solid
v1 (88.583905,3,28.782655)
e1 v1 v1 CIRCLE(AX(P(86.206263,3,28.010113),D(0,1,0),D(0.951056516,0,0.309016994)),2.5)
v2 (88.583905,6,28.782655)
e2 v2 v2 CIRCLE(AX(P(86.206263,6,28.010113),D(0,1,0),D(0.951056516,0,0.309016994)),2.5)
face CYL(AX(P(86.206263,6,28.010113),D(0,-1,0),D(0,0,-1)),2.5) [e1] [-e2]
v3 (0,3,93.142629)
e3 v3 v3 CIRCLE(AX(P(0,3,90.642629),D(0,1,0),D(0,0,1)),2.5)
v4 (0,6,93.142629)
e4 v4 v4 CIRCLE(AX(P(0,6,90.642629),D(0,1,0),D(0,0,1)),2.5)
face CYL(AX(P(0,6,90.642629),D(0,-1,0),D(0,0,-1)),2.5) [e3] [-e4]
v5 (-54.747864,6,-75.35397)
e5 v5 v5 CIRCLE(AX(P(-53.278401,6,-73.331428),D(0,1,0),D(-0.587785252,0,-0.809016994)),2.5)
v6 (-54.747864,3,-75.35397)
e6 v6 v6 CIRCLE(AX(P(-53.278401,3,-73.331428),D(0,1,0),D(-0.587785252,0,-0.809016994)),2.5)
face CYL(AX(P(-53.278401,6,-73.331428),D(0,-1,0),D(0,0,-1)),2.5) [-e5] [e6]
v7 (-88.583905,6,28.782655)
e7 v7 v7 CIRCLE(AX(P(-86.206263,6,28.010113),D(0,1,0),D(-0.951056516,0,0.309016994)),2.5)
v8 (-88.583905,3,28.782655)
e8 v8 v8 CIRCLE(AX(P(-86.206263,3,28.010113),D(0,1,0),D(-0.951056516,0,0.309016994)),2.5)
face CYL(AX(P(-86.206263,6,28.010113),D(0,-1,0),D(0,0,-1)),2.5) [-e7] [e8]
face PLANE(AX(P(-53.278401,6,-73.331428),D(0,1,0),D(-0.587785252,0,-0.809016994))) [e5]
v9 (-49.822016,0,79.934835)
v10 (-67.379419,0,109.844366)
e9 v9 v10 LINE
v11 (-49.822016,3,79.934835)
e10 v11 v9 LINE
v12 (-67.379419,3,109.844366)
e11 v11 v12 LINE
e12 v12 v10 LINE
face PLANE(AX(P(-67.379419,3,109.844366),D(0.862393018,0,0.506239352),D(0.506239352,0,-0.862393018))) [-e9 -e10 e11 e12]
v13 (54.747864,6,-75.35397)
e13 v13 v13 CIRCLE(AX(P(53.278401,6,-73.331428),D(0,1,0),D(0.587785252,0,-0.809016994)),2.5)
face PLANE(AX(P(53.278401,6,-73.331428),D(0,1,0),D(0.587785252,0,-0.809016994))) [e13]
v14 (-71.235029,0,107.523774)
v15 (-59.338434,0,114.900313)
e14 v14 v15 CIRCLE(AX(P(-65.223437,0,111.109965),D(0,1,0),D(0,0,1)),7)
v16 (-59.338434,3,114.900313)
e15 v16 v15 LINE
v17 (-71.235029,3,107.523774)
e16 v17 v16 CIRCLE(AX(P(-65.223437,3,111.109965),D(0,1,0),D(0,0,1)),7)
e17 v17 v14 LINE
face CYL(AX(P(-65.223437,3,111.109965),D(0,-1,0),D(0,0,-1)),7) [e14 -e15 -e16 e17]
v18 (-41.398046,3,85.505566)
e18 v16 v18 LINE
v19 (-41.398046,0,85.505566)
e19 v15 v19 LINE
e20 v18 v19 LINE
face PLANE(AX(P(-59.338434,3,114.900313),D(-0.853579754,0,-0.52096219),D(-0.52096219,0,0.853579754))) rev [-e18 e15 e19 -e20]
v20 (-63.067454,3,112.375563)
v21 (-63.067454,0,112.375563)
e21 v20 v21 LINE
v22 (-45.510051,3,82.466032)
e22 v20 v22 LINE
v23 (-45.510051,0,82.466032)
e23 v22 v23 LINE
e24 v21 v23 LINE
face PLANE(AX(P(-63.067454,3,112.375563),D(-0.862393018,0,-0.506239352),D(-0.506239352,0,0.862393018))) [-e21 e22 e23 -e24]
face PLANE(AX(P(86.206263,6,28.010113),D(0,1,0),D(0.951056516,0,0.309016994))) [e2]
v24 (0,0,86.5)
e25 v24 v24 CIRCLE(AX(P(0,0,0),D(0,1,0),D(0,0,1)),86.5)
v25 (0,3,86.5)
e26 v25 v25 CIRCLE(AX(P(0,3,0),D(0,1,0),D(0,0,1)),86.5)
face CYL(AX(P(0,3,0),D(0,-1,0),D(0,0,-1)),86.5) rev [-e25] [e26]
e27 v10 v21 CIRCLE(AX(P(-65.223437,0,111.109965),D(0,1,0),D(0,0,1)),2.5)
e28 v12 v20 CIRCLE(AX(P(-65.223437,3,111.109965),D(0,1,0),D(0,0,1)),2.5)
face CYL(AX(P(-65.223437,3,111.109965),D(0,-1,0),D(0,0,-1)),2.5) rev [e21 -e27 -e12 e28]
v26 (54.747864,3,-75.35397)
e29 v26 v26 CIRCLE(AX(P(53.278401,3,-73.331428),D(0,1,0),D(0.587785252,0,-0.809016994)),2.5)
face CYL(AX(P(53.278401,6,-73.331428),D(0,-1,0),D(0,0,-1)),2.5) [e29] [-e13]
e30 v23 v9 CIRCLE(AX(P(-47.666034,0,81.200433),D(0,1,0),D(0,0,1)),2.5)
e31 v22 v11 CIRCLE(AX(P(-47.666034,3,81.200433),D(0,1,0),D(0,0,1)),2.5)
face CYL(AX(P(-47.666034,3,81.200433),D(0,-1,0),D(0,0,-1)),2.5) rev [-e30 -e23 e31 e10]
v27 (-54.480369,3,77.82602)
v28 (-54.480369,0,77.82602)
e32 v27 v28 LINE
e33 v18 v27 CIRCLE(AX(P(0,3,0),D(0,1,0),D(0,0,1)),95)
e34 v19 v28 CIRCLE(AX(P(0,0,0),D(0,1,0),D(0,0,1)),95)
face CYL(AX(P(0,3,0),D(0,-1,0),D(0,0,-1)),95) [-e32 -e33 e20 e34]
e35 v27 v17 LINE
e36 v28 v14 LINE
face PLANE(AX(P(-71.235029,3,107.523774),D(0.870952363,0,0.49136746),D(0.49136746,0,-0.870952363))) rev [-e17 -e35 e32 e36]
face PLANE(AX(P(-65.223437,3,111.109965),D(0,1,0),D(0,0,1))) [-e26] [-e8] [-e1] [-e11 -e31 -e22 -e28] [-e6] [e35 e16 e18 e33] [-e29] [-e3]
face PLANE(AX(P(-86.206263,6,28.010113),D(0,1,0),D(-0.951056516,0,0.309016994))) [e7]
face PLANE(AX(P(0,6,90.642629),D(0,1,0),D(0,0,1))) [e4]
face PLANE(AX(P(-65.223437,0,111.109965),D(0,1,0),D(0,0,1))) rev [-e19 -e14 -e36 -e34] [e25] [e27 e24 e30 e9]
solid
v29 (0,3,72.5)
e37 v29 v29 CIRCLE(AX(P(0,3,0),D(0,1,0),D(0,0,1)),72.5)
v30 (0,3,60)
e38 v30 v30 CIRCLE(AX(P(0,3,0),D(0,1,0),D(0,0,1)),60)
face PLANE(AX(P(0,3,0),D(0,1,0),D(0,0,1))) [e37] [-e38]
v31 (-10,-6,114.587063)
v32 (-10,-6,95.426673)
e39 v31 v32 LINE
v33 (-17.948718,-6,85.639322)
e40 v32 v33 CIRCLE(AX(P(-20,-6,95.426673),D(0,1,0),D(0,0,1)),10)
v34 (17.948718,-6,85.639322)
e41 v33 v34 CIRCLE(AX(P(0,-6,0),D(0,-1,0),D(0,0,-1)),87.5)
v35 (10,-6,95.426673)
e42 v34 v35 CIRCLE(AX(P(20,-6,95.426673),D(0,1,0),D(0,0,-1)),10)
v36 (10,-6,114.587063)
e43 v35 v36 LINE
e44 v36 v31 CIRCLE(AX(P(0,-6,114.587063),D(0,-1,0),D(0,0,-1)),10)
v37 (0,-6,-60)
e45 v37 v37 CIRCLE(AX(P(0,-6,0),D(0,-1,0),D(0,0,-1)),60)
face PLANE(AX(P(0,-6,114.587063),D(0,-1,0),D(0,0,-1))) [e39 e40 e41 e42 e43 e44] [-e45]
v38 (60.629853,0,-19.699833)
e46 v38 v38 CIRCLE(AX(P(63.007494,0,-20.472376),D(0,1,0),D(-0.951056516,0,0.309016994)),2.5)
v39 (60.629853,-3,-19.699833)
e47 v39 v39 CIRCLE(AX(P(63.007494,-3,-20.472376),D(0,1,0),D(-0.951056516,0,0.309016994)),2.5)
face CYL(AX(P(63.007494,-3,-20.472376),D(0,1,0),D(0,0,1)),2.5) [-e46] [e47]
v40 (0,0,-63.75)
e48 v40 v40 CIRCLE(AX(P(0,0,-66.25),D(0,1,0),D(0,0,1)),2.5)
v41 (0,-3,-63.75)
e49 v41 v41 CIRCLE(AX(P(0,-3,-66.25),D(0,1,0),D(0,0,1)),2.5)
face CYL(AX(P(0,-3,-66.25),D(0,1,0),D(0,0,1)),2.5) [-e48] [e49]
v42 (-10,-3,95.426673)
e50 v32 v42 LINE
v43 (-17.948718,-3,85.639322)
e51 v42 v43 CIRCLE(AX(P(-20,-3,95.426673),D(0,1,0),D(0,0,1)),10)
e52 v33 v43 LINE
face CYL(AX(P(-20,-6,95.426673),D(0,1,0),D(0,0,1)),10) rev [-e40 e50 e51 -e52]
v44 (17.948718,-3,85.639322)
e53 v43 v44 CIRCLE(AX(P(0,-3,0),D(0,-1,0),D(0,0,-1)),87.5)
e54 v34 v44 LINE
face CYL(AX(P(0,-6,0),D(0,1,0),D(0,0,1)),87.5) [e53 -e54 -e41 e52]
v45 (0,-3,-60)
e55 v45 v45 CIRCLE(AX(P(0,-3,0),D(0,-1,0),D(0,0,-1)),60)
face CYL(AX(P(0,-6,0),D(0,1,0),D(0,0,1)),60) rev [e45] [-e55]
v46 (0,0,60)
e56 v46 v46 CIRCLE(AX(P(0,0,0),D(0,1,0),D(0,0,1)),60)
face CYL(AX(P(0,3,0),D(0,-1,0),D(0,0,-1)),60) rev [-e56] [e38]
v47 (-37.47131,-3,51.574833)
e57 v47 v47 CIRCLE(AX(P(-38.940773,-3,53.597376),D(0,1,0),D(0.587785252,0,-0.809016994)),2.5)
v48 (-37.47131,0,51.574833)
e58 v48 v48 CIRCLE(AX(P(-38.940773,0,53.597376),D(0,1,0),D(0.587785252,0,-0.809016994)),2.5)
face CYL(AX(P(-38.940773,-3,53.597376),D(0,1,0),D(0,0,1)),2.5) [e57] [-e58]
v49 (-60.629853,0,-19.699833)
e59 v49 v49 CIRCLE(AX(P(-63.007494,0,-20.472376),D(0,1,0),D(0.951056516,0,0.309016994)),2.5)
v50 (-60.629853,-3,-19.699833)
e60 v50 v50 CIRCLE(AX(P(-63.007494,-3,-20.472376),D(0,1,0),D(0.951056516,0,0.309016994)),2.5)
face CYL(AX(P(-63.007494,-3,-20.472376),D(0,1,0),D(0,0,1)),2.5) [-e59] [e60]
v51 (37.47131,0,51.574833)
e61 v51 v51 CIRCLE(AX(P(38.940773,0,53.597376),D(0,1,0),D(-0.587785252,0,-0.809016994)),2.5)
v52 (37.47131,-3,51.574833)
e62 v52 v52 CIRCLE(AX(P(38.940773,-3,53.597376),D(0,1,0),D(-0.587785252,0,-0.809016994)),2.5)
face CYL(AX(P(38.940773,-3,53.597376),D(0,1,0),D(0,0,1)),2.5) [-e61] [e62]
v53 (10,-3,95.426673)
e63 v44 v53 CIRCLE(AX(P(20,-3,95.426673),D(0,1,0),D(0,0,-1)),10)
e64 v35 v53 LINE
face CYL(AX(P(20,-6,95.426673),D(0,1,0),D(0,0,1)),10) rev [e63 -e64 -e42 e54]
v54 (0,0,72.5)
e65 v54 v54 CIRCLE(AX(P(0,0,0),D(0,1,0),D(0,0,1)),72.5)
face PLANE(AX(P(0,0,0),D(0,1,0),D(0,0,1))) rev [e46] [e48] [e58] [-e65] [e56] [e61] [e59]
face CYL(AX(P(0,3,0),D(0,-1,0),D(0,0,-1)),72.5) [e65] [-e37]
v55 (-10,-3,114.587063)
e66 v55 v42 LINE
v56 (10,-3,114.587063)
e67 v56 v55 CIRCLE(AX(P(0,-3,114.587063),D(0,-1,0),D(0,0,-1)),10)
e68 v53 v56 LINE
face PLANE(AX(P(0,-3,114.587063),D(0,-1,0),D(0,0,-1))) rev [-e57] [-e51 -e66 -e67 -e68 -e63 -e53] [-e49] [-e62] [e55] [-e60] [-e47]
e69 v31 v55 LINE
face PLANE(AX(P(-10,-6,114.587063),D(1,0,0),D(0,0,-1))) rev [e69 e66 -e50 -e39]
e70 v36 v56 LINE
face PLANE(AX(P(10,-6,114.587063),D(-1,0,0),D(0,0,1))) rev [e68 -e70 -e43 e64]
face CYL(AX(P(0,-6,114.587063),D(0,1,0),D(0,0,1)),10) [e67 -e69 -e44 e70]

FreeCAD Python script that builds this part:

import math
import FreeCAD as App
import Part
import Sketcher

V = App.Vector

doc = App.newDocument("Part")
body = doc.addObject("PartDesign::Body", "Body")

# Sketch on XZ plane
sketch1 = doc.addObject("Sketcher::SketchObject", "Sketch")
body.addObject(sketch1)
sketch1.AttachmentSupport = (doc.XZ_Plane, [""])
sketch1.MapMode = "FlatFace"
sketch1.addGeometry(Part.Circle(V(0, 0, 0), V(0, 0, 1), 72.5), False)
sketch1.addGeometry(Part.Circle(V(0, 0, 0), V(0, 0, 1), 60), False)
sketch1.addConstraint(Sketcher.Constraint("Coincident", 0, 3, -1, 1))
sketch1.addConstraint(Sketcher.Constraint("Coincident", 1, 3, -1, 1))
sketch1.addConstraint(Sketcher.Constraint("Diameter", 0, 145.0))
sketch1.addConstraint(Sketcher.Constraint("Diameter", 1, 120.0))
pad1 = doc.addObject("PartDesign::Pad", "Pad")
body.addObject(pad1)
pad1.Profile = sketch1
pad1.Length = 3
pad1.Reversed = True

# Sketch on XZ plane
sketch2 = doc.addObject("Sketcher::SketchObject", "Sketch001")
body.addObject(sketch2)
sketch2.AttachmentSupport = (doc.XZ_Plane, [""])
sketch2.MapMode = "FlatFace"
sketch2.addGeometry(Part.Circle(V(0, -66.25, 0), V(0, 0, 1), 2.5), False)
sketch2.addConstraint(Sketcher.Constraint("PointOnObject", 0, 3, -2))
sketch2.addConstraint(Sketcher.Constraint("Diameter", 0, 5.0))
sketch2.addConstraint(Sketcher.Constraint("DistanceY", 0, 3, -1, 1, 66.25))
pad2 = doc.addObject("PartDesign::Pad", "Pad001")
body.addObject(pad2)
pad2.Profile = sketch2
pad2.Length = 3
doc.recompute()

polarpattern = doc.addObject("PartDesign::PolarPattern", "PolarPattern")
body.addObject(polarpattern)
polarpattern.Originals = [pad2]
polarpattern.Axis = (doc.Y_Axis, [""])
polarpattern.Angle = 360
polarpattern.Occurrences = 5
body.Tip = polarpattern

# Sketch on XZ plane
sketch3 = doc.addObject("Sketcher::SketchObject", "Sketch002")
body.addObject(sketch3)
sketch3.AttachmentSupport = (doc.XZ_Plane, [""])
sketch3.MapMode = "FlatFace"
sketch3.AttachmentOffset = App.Placement(V(0, 0, 6), App.Rotation())
sketch3.addGeometry(Part.LineSegment(V(10, 95.426673, 0), V(10, 114.587063, 0)), False)
sketch3.addGeometry(Part.ArcOfCircle(Part.Circle(V(0, 114.587063, 0), V(0, 0, 1), 10), math.radians(0), math.radians(180)), False)
sketch3.addGeometry(Part.LineSegment(V(-10, 114.587063, 0), V(-10, 95.426673, 0)), False)
sketch3.addGeometry(Part.ArcOfCircle(Part.Circle(V(-20, 95.426673, 0), V(0, 0, 1), 10), math.radians(-78.162996), math.radians(0)), False)
sketch3.addGeometry(Part.ArcOfCircle(Part.Circle(V(0, 0, 0), V(0, 0, 1), 87.5), math.radians(101.837004), math.radians(438.162996)), False)
sketch3.addGeometry(Part.ArcOfCircle(Part.Circle(V(20, 95.426673, 0), V(0, 0, 1), 10), math.radians(180), math.radians(258.162996)), False)
sketch3.addGeometry(Part.Circle(V(0, 0, 0), V(0, 0, 1), 60), False)
sketch3.addConstraint(Sketcher.Constraint("Tangent", 0, 2, 1, 1))
sketch3.addConstraint(Sketcher.Constraint("Tangent", 1, 2, 2, 1))
sketch3.addConstraint(Sketcher.Constraint("Tangent", 2, 2, 3, 2))
sketch3.addConstraint(Sketcher.Constraint("Tangent", 3, 1, 4, 1))
sketch3.addConstraint(Sketcher.Constraint("Tangent", 4, 2, 5, 2))
sketch3.addConstraint(Sketcher.Constraint("Tangent", 5, 1, 0, 1))
sketch3.addConstraint(Sketcher.Constraint("Vertical", 0))
sketch3.addConstraint(Sketcher.Constraint("Vertical", 2))
sketch3.addConstraint(Sketcher.Constraint("Coincident", 4, 3, -1, 1))
sketch3.addConstraint(Sketcher.Constraint("Coincident", 6, 3, -1, 1))
sketch3.addConstraint(Sketcher.Constraint("Equal", 1, 3))
sketch3.addConstraint(Sketcher.Constraint("Equal", 3, 5))
sketch3.addConstraint(Sketcher.Constraint("PointOnObject", 1, 3, -2))
sketch3.addConstraint(Sketcher.Constraint("Diameter", 6, 120.0))
sketch3.addConstraint(Sketcher.Constraint("Radius", 1, 10.0))
sketch3.addConstraint(Sketcher.Constraint("Radius", 4, 87.5))
sketch3.addConstraint(Sketcher.Constraint("DistanceY", 0, 1, 0, 2, 19.16039))
pad3 = doc.addObject("PartDesign::Pad", "Pad002")
body.addObject(pad3)
pad3.Profile = sketch3
pad3.Length = 3
pad3.Reversed = True
body2 = doc.addObject("PartDesign::Body", "Body001")

# Sketch on XZ plane
sketch4 = doc.addObject("Sketcher::SketchObject", "Sketch003")
body2.addObject(sketch4)
sketch4.AttachmentSupport = (doc.getObject("XZ_Plane001"), [""])
sketch4.MapMode = "FlatFace"
sketch4.addGeometry(Part.LineSegment(V(-54.480369, 77.82602, 0), V(-71.235029, 107.523774, 0)), False)
sketch4.addGeometry(Part.ArcOfCircle(Part.Circle(V(-65.223437, 111.109965, 0), V(0, 0, 1), 7), math.radians(32.78433), math.radians(210.818015)), False)
sketch4.addGeometry(Part.LineSegment(V(-59.338434, 114.900313, 0), V(-41.398046, 85.505566, 0)), False)
sketch4.addGeometry(Part.ArcOfCircle(Part.Circle(V(0, 0, 0), V(0, 0, 1), 95), math.radians(124.993085), math.radians(475.834231)), False)
sketch4.addGeometry(Part.Circle(V(0, 0, 0), V(0, 0, 1), 86.5), False)
sketch4.addConstraint(Sketcher.Constraint("Coincident", 0, 2, 1, 2))
sketch4.addConstraint(Sketcher.Constraint("Coincident", 1, 1, 2, 1))
sketch4.addConstraint(Sketcher.Constraint("Coincident", 2, 2, 3, 2))
sketch4.addConstraint(Sketcher.Constraint("Coincident", 3, 1, 0, 1))
sketch4.addConstraint(Sketcher.Constraint("Coincident", 3, 3, -1, 1))
sketch4.addConstraint(Sketcher.Constraint("Coincident", 4, 3, -1, 1))
sketch4.addConstraint(Sketcher.Constraint("Diameter", 4, 173.0))
sketch4.addConstraint(Sketcher.Constraint("Radius", 1, 7.0))
sketch4.addConstraint(Sketcher.Constraint("Radius", 3, 95.0))
sketch4.addConstraint(Sketcher.Constraint("DistanceY", 2, 2, 1, 3, 25.604399))
sketch4.addConstraint(Sketcher.Constraint("DistanceX", 0, 2, -1, 1, 71.235029))
sketch4.addConstraint(Sketcher.Constraint("DistanceX", 3, 1, -1, 1, 54.480369))
sketch4.addConstraint(Sketcher.Constraint("DistanceY", 0, 2, 1, 3, 3.58619))
sketch4.addConstraint(Sketcher.Constraint("DistanceY", 1, 3, 1, 1, 3.790348))
sketch4.addConstraint(Sketcher.Constraint("DistanceX", 1, 3, 2, 2, 23.825391))
pad4 = doc.addObject("PartDesign::Pad", "Pad003")
body2.addObject(pad4)
pad4.Profile = sketch4
pad4.Length = 3
pad4.Reversed = True

# Sketch on XZ plane
sketch5 = doc.addObject("Sketcher::SketchObject", "Sketch004")
body2.addObject(sketch5)
sketch5.AttachmentSupport = (doc.getObject("XZ_Plane001"), [""])
sketch5.MapMode = "FlatFace"
sketch5.AttachmentOffset = App.Placement(V(0, 0, -3), App.Rotation())
sketch5.addGeometry(Part.Circle(V(0, 90.642629, 0), V(0, 0, 1), 2.5), False)
sketch5.addConstraint(Sketcher.Constraint("PointOnObject", 0, 3, -2))
sketch5.addConstraint(Sketcher.Constraint("Diameter", 0, 5.0))
sketch5.addConstraint(Sketcher.Constraint("DistanceY", -1, 1, 0, 3, 90.642629))
pad5 = doc.addObject("PartDesign::Pad", "Pad004")
body2.addObject(pad5)
pad5.Profile = sketch5
pad5.Length = 3
pad5.Reversed = True
doc.recompute()

polarpattern2 = doc.addObject("PartDesign::PolarPattern", "PolarPattern001")
body2.addObject(polarpattern2)
polarpattern2.Originals = [pad5]
polarpattern2.Axis = (doc.getObject("Y_Axis001"), [""])
polarpattern2.Angle = 360
polarpattern2.Occurrences = 5
body2.Tip = polarpattern2

# Sketch on XZ plane
sketch6 = doc.addObject("Sketcher::SketchObject", "Sketch005")
body2.addObject(sketch6)
sketch6.AttachmentSupport = (doc.getObject("XZ_Plane001"), [""])
sketch6.MapMode = "FlatFace"
sketch6.addGeometry(Part.LineSegment(V(-49.822016, 79.934835, 0), V(-67.379419, 109.844366, 0)), False)
sketch6.addGeometry(Part.ArcOfCircle(Part.Circle(V(-65.223437, 111.109965, 0), V(0, 0, 1), 2.5), math.radians(30.413658), math.radians(210.413658)), False)
sketch6.addGeometry(Part.LineSegment(V(-63.067454, 112.375563, 0), V(-45.510051, 82.466032, 0)), False)
sketch6.addGeometry(Part.ArcOfCircle(Part.Circle(V(-47.666034, 81.200433, 0), V(0, 0, 1), 2.5), math.radians(-149.586342), math.radians(30.413658)), False)
sketch6.addConstraint(Sketcher.Constraint("Tangent", 0, 2, 1, 2))
sketch6.addConstraint(Sketcher.Constraint("Tangent", 1, 1, 2, 1))
sketch6.addConstraint(Sketcher.Constraint("Tangent", 2, 2, 3, 2))
sketch6.addConstraint(Sketcher.Constraint("Tangent", 3, 1, 0, 1))
sketch6.addConstraint(Sketcher.Constraint("Equal", 1, 3))
sketch6.addConstraint(Sketcher.Constraint("Radius", 1, 2.5))
sketch6.addConstraint(Sketcher.Constraint("DistanceY", 0, 2, 1, 3, 1.265598))
sketch6.addConstraint(Sketcher.Constraint("Distance", 0, 34.68202))
sketch6.addConstraint(Sketcher.Constraint("DistanceX", 0, 2, -1, 1, 67.379419))
sketch6.addConstraint(Sketcher.Constraint("DistanceY", -1, 1, 2, 2, 82.466032))
pocket1 = doc.addObject("PartDesign::Pocket", "Pocket")
body2.addObject(pocket1)
pocket1.Profile = sketch6
pocket1.Length = 3

doc.recompute()
